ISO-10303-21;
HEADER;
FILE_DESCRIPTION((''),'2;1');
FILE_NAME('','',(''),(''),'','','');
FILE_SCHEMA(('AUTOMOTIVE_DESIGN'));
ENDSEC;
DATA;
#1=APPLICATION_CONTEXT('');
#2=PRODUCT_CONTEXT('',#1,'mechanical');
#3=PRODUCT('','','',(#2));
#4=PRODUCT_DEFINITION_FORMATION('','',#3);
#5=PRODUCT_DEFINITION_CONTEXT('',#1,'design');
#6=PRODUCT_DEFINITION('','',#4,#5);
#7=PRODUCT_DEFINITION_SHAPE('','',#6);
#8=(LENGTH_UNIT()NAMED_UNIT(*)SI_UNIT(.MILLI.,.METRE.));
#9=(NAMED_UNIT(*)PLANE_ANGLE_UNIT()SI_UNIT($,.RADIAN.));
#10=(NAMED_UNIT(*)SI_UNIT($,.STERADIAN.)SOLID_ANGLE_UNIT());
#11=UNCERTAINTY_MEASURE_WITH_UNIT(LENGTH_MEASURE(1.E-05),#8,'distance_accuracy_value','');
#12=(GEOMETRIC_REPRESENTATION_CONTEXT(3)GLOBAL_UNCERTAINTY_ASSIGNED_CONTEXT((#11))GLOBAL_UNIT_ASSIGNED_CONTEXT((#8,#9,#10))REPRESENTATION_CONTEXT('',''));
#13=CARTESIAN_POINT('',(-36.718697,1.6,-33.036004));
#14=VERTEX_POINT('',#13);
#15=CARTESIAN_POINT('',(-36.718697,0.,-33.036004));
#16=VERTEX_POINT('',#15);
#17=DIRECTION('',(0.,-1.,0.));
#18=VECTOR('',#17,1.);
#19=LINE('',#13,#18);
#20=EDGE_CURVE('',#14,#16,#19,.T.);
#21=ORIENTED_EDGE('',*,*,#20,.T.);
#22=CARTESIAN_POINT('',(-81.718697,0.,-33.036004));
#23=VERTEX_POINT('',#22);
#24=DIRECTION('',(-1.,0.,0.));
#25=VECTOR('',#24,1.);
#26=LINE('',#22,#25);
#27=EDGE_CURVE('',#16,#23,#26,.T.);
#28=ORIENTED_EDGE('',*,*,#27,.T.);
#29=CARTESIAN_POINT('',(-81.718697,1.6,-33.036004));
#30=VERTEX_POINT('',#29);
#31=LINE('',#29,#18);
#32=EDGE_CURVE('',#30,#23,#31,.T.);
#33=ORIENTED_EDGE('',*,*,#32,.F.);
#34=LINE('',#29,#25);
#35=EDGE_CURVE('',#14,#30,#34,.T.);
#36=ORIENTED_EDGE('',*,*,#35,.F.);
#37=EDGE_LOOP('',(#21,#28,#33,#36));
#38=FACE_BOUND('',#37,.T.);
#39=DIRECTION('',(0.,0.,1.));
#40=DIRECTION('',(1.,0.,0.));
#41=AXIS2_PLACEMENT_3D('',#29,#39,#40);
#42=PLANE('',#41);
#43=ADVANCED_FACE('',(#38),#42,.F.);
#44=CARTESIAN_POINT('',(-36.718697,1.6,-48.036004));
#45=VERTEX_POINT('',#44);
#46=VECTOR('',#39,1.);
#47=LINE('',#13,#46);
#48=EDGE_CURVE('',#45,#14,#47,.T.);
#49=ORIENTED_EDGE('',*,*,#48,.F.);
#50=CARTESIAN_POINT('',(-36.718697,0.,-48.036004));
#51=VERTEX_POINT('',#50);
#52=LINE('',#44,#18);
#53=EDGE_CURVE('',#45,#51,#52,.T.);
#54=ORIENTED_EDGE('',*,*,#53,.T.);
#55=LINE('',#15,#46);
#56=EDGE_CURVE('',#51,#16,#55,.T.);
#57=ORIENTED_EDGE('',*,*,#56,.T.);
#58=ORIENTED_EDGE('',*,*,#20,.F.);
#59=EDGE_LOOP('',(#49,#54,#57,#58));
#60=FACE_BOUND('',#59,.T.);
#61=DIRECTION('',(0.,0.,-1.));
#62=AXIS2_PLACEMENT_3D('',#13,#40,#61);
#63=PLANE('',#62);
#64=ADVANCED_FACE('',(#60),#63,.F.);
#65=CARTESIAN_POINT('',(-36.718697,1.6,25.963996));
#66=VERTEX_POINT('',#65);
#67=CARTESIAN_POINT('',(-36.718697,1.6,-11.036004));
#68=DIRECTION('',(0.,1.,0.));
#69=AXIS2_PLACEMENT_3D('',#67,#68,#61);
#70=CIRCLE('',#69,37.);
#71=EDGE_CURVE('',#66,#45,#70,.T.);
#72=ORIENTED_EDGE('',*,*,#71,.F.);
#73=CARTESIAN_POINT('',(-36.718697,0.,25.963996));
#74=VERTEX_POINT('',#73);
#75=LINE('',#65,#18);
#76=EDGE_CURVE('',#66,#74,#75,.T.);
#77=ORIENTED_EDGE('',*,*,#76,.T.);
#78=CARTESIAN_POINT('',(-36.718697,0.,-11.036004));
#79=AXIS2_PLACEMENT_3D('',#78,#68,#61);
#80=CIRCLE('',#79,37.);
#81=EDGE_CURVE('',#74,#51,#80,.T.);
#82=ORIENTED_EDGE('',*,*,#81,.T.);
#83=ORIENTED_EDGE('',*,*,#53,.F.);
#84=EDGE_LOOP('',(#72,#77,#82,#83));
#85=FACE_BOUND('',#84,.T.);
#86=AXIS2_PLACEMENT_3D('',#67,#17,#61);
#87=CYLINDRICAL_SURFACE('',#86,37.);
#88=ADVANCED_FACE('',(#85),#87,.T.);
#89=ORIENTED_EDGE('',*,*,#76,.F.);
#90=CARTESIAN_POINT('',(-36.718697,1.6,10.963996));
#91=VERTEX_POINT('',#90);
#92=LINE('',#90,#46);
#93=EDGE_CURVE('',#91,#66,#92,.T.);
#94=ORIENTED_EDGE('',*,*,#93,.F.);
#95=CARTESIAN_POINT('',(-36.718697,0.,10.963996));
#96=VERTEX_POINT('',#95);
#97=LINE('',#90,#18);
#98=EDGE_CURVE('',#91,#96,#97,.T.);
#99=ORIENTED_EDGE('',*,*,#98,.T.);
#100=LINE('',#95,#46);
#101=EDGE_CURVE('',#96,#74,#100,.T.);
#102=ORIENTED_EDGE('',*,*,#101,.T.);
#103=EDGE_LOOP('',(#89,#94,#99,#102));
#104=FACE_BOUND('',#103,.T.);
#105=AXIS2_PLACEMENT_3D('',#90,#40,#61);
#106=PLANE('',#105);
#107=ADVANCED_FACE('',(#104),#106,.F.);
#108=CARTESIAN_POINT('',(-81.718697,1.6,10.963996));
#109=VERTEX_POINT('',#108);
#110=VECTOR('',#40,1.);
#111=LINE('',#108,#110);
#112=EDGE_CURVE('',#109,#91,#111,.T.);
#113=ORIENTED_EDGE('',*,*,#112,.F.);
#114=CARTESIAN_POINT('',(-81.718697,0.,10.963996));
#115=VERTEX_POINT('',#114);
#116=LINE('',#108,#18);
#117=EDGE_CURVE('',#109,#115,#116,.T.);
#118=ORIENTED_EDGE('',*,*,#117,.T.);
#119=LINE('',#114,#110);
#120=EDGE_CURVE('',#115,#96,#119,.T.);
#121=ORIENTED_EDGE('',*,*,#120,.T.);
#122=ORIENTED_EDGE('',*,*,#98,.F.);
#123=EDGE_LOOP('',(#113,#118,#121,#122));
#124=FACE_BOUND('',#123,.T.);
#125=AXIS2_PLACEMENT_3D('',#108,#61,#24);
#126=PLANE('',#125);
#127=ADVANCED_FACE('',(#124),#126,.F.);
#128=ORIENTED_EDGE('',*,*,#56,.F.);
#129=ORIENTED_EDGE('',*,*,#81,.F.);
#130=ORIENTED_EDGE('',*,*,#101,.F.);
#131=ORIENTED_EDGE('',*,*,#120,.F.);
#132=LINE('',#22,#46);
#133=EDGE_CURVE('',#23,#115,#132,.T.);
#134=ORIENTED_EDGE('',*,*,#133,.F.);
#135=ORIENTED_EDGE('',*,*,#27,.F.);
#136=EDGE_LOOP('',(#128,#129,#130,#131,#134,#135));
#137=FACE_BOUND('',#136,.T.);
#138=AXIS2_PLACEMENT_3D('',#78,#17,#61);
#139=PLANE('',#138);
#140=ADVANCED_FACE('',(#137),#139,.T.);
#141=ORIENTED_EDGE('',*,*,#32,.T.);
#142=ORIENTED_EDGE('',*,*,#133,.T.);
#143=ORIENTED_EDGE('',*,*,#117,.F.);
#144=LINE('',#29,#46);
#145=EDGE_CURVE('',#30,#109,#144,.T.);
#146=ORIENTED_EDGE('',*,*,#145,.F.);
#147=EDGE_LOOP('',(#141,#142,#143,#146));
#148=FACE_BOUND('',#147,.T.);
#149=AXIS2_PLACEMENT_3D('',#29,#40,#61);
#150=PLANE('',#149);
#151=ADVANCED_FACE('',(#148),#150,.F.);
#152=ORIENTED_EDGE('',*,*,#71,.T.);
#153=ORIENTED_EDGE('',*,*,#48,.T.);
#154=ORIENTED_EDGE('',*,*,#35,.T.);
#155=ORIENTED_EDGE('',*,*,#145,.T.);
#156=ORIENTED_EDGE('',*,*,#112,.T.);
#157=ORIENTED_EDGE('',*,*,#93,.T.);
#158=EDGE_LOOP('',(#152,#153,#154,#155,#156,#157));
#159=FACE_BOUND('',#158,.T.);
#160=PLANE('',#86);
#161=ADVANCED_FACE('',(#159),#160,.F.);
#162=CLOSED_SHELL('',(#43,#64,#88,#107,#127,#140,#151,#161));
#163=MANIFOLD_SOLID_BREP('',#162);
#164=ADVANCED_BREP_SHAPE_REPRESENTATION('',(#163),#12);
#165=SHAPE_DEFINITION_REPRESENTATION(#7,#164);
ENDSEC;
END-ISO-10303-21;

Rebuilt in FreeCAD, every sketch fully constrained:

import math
import FreeCAD as App
import Part
import Sketcher

V = App.Vector

doc = App.newDocument("Part")
body = doc.addObject("PartDesign::Body", "Body")

# Sketch on XZ plane
sketch1 = body.newObject("Sketcher::SketchObject", "Sketch")
sketch1.AttachmentSupport = (doc.getObject("XZ_Plane"), [""])
sketch1.MapMode = "FlatFace"
sketch1.addGeometry(Part.LineSegment(V(-82, -33, 0), V(-82, 11, 0)), False)
sketch1.addGeometry(Part.LineSegment(V(-82, 11, 0), V(-37, 11, 0)), False)
sketch1.addGeometry(Part.LineSegment(V(-37, 11, 0), V(-37, 26, 0)), False)
sketch1.addGeometry(Part.ArcOfCircle(Part.Circle(V(-37, -11, 0), V(0, 0, 1), 37), math.radians(-90), math.radians(90)), False)
sketch1.addGeometry(Part.LineSegment(V(-37, -48, 0), V(-37, -33, 0)), False)
sketch1.addGeometry(Part.LineSegment(V(-37, -33, 0), V(-82, -33, 0)), False)
sketch1.addConstraint(Sketcher.Constraint("Coincident", 0, 2, 1, 1))
sketch1.addConstraint(Sketcher.Constraint("Coincident", 1, 2, 2, 1))
sketch1.addConstraint(Sketcher.Constraint("Coincident", 2, 2, 3, 2))
sketch1.addConstraint(Sketcher.Constraint("Coincident", 3, 1, 4, 1))
sketch1.addConstraint(Sketcher.Constraint("Coincident", 4, 2, 5, 1))
sketch1.addConstraint(Sketcher.Constraint("Coincident", 5, 2, 0, 1))
sketch1.addConstraint(Sketcher.Constraint("Vertical", 0))
sketch1.addConstraint(Sketcher.Constraint("Horizontal", 1))
sketch1.addConstraint(Sketcher.Constraint("Vertical", 2))
sketch1.addConstraint(Sketcher.Constraint("Vertical", 4))
sketch1.addConstraint(Sketcher.Constraint("Horizontal", 5))
sketch1.addConstraint(Sketcher.Constraint("Vertical", 3, 3, 1, 2))
sketch1.addConstraint(Sketcher.Constraint("Vertical", 2, 2, 3, 1))
sketch1.addConstraint(Sketcher.Constraint("Equal", 2, 4))
sketch1.addConstraint(Sketcher.Constraint("Radius", 3, 37.0))
sketch1.addConstraint(Sketcher.Constraint("DistanceX", 1, 1, 1, 2, 45.0))
sketch1.addConstraint(Sketcher.Constraint("DistanceY", 0, 1, 0, 2, 44.0))
sketch1.addConstraint(Sketcher.Constraint("DistanceX", 3, 3, -1, 1, 36.718697))
sketch1.addConstraint(Sketcher.Constraint("DistanceY", 3, 3, -1, 1, 11.036004))
pad1 = body.newObject("PartDesign::Pad", "Pad")
pad1.Profile = sketch1
pad1.Length = 1.6
pad1.Reversed = True

doc.recompute()
